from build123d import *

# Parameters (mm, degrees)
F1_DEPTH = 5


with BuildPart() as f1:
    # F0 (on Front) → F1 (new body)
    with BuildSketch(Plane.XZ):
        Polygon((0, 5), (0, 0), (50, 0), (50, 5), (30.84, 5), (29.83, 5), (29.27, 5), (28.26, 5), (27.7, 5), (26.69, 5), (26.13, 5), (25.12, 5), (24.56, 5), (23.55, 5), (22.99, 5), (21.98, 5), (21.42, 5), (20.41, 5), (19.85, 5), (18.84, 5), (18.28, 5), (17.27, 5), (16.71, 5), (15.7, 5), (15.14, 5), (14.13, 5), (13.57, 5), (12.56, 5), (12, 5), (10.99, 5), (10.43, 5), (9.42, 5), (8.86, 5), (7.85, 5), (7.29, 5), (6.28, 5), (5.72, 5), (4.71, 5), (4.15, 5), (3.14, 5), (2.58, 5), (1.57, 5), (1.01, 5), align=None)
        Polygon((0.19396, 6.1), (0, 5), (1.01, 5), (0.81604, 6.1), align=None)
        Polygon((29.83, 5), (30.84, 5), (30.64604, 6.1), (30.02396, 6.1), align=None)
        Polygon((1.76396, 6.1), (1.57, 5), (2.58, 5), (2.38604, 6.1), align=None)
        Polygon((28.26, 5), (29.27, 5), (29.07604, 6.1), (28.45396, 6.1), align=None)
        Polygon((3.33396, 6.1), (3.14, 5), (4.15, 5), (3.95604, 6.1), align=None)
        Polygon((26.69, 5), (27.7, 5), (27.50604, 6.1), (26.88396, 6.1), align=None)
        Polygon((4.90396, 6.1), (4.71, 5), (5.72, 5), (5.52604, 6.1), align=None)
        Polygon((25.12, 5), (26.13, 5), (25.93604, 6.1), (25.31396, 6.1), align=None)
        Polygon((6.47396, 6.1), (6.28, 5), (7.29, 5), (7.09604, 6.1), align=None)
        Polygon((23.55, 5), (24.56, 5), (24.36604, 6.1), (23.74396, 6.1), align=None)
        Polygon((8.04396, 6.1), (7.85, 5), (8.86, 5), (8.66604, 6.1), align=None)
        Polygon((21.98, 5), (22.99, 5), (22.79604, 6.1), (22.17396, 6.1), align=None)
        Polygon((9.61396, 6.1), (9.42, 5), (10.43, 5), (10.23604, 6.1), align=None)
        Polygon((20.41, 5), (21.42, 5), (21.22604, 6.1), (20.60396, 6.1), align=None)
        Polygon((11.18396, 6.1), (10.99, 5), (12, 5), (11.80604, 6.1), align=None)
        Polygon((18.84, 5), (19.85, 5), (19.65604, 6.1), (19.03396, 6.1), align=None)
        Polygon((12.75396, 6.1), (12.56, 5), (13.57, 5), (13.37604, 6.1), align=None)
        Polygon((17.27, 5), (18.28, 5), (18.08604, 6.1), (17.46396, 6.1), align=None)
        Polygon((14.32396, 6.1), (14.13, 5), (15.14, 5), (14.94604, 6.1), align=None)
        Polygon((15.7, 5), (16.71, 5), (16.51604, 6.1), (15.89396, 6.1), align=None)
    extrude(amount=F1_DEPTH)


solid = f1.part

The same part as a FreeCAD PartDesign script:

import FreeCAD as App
import Part
import Sketcher
Q = App.Units.Quantity

doc = App.newDocument("Part")
body = doc.addObject("PartDesign::Body", "Body")

# Sketch on XZ plane
sketch1 = doc.addObject("Sketcher::SketchObject", "Sketch")
body.addObject(sketch1)
sketch1.AttachmentSupport = (doc.XZ_Plane, [""])
sketch1.MapMode = "FlatFace"
sketch1.addGeometry([
    Part.LineSegment(App.Vector(0, 5, 0), App.Vector(0, 0, 0)),  # 0
    Part.LineSegment(App.Vector(0, 0, 0), App.Vector(50, 0, 0)),  # 1
    Part.LineSegment(App.Vector(50, 0, 0), App.Vector(50, 5, 0)),  # 2
    Part.LineSegment(App.Vector(50, 5, 0), App.Vector(30.8, 5, 0)),  # 3
    Part.LineSegment(App.Vector(30.8, 5, 0), App.Vector(30.6, 6.1, 0)),  # 4
    Part.LineSegment(App.Vector(30.6, 6.1, 0), App.Vector(30, 6.1, 0)),  # 5
    Part.LineSegment(App.Vector(30, 6.1, 0), App.Vector(29.8, 5, 0)),  # 6
    Part.LineSegment(App.Vector(29.8, 5, 0), App.Vector(29.3, 5, 0)),  # 7
    Part.LineSegment(App.Vector(29.3, 5, 0), App.Vector(29.1, 6.1, 0)),  # 8
    Part.LineSegment(App.Vector(29.1, 6.1, 0), App.Vector(28.5, 6.1, 0)),  # 9
    Part.LineSegment(App.Vector(28.5, 6.1, 0), App.Vector(28.3, 5, 0)),  # 10
    Part.LineSegment(App.Vector(28.3, 5, 0), App.Vector(27.7, 5, 0)),  # 11
    Part.LineSegment(App.Vector(27.7, 5, 0), App.Vector(27.5, 6.1, 0)),  # 12
    Part.LineSegment(App.Vector(27.5, 6.1, 0), App.Vector(26.9, 6.1, 0)),  # 13
    Part.LineSegment(App.Vector(26.9, 6.1, 0), App.Vector(26.7, 5, 0)),  # 14
    Part.LineSegment(App.Vector(26.7, 5, 0), App.Vector(26.1, 5, 0)),  # 15
    Part.LineSegment(App.Vector(26.1, 5, 0), App.Vector(25.9, 6.1, 0)),  # 16
    Part.LineSegment(App.Vector(25.9, 6.1, 0), App.Vector(25.3, 6.1, 0)),  # 17
    Part.LineSegment(App.Vector(25.3, 6.1, 0), App.Vector(25.1, 5, 0)),  # 18
    Part.LineSegment(App.Vector(25.1, 5, 0), App.Vector(24.6, 5, 0)),  # 19
    Part.LineSegment(App.Vector(24.6, 5, 0), App.Vector(24.4, 6.1, 0)),  # 20
    Part.LineSegment(App.Vector(24.4, 6.1, 0), App.Vector(23.7, 6.1, 0)),  # 21
    Part.LineSegment(App.Vector(23.7, 6.1, 0), App.Vector(23.6, 5, 0)),  # 22
    Part.LineSegment(App.Vector(23.6, 5, 0), App.Vector(23, 5, 0)),  # 23
    Part.LineSegment(App.Vector(23, 5, 0), App.Vector(22.8, 6.1, 0)),  # 24
    Part.LineSegment(App.Vector(22.8, 6.1, 0), App.Vector(22.2, 6.1, 0)),  # 25
    Part.LineSegment(App.Vector(22.2, 6.1, 0), App.Vector(22, 5, 0)),  # 26
    Part.LineSegment(App.Vector(22, 5, 0), App.Vector(21.4, 5, 0)),  # 27
    Part.LineSegment(App.Vector(21.4, 5, 0), App.Vector(21.2, 6.1, 0)),  # 28
    Part.LineSegment(App.Vector(21.2, 6.1, 0), App.Vector(20.6, 6.1, 0)),  # 29
    Part.LineSegment(App.Vector(20.6, 6.1, 0), App.Vector(20.4, 5, 0)),  # 30
    Part.LineSegment(App.Vector(20.4, 5, 0), App.Vector(19.9, 5, 0)),  # 31
    Part.LineSegment(App.Vector(19.9, 5, 0), App.Vector(19.7, 6.1, 0)),  # 32
    Part.LineSegment(App.Vector(19.7, 6.1, 0), App.Vector(19, 6.1, 0)),  # 33
    Part.LineSegment(App.Vector(19, 6.1, 0), App.Vector(18.8, 5, 0)),  # 34
    Part.LineSegment(App.Vector(18.8, 5, 0), App.Vector(18.3, 5, 0)),  # 35
    Part.LineSegment(App.Vector(18.3, 5, 0), App.Vector(18.1, 6.1, 0)),  # 36
    Part.LineSegment(App.Vector(18.1, 6.1, 0), App.Vector(17.5, 6.1, 0)),  # 37
    Part.LineSegment(App.Vector(17.5, 6.1, 0), App.Vector(17.3, 5, 0)),  # 38
    Part.LineSegment(App.Vector(17.3, 5, 0), App.Vector(16.7, 5, 0)),  # 39
    Part.LineSegment(App.Vector(16.7, 5, 0), App.Vector(16.5, 6.1, 0)),  # 40
    Part.LineSegment(App.Vector(16.5, 6.1, 0), App.Vector(15.9, 6.1, 0)),  # 41
    Part.LineSegment(App.Vector(15.9, 6.1, 0), App.Vector(15.7, 5, 0)),  # 42
    Part.LineSegment(App.Vector(15.7, 5, 0), App.Vector(15.1, 5, 0)),  # 43
    Part.LineSegment(App.Vector(15.1, 5, 0), App.Vector(14.9, 6.1, 0)),  # 44
    Part.LineSegment(App.Vector(14.9, 6.1, 0), App.Vector(14.3, 6.1, 0)),  # 45
    Part.LineSegment(App.Vector(14.3, 6.1, 0), App.Vector(14.1, 5, 0)),  # 46
    Part.LineSegment(App.Vector(14.1, 5, 0), App.Vector(13.6, 5, 0)),  # 47
    Part.LineSegment(App.Vector(13.6, 5, 0), App.Vector(13.4, 6.1, 0)),  # 48
    Part.LineSegment(App.Vector(13.4, 6.1, 0), App.Vector(12.8, 6.1, 0)),  # 49
    Part.LineSegment(App.Vector(12.8, 6.1, 0), App.Vector(12.6, 5, 0)),  # 50
    Part.LineSegment(App.Vector(12.6, 5, 0), App.Vector(12, 5, 0)),  # 51
    Part.LineSegment(App.Vector(12, 5, 0), App.Vector(11.8, 6.1, 0)),  # 52
    Part.LineSegment(App.Vector(11.8, 6.1, 0), App.Vector(11.2, 6.1, 0)),  # 53
    Part.LineSegment(App.Vector(11.2, 6.1, 0), App.Vector(11, 5, 0)),  # 54
    Part.LineSegment(App.Vector(11, 5, 0), App.Vector(10.4, 5, 0)),  # 55
    Part.LineSegment(App.Vector(10.4, 5, 0), App.Vector(10.2, 6.1, 0)),  # 56
    Part.LineSegment(App.Vector(10.2, 6.1, 0), App.Vector(9.6, 6.1, 0)),  # 57
    Part.LineSegment(App.Vector(9.6, 6.1, 0), App.Vector(9.4, 5, 0)),  # 58
    Part.LineSegment(App.Vector(9.4, 5, 0), App.Vector(8.9, 5, 0)),  # 59
    Part.LineSegment(App.Vector(8.9, 5, 0), App.Vector(8.7, 6.1, 0)),  # 60
    Part.LineSegment(App.Vector(8.7, 6.1, 0), App.Vector(8, 6.1, 0)),  # 61
    Part.LineSegment(App.Vector(8, 6.1, 0), App.Vector(7.8, 5, 0)),  # 62
    Part.LineSegment(App.Vector(7.8, 5, 0), App.Vector(7.3, 5, 0)),  # 63
    Part.LineSegment(App.Vector(7.3, 5, 0), App.Vector(7.1, 6.1, 0)),  # 64
    Part.LineSegment(App.Vector(7.1, 6.1, 0), App.Vector(6.5, 6.1, 0)),  # 65
    Part.LineSegment(App.Vector(6.5, 6.1, 0), App.Vector(6.3, 5, 0)),  # 66
    Part.LineSegment(App.Vector(6.3, 5, 0), App.Vector(5.7, 5, 0)),  # 67
    Part.LineSegment(App.Vector(5.7, 5, 0), App.Vector(5.5, 6.1, 0)),  # 68
    Part.LineSegment(App.Vector(5.5, 6.1, 0), App.Vector(4.9, 6.1, 0)),  # 69
    Part.LineSegment(App.Vector(4.9, 6.1, 0), App.Vector(4.7, 5, 0)),  # 70
    Part.LineSegment(App.Vector(4.7, 5, 0), App.Vector(4.2, 5, 0)),  # 71
    Part.LineSegment(App.Vector(4.2, 5, 0), App.Vector(4, 6.1, 0)),  # 72
    Part.LineSegment(App.Vector(4, 6.1, 0), App.Vector(3.3, 6.1, 0)),  # 73
    Part.LineSegment(App.Vector(3.3, 6.1, 0), App.Vector(3.1, 5, 0)),  # 74
    Part.LineSegment(App.Vector(3.1, 5, 0), App.Vector(2.6, 5, 0)),  # 75
    Part.LineSegment(App.Vector(2.6, 5, 0), App.Vector(2.4, 6.1, 0)),  # 76
    Part.LineSegment(App.Vector(2.4, 6.1, 0), App.Vector(1.8, 6.1, 0)),  # 77
    Part.LineSegment(App.Vector(1.8, 6.1, 0), App.Vector(1.6, 5, 0)),  # 78
    Part.LineSegment(App.Vector(1.6, 5, 0), App.Vector(1, 5, 0)),  # 79
    Part.LineSegment(App.Vector(1, 5, 0), App.Vector(0.8, 6.1, 0)),  # 80
    Part.LineSegment(App.Vector(0.8, 6.1, 0), App.Vector(0.2, 6.1, 0)),  # 81
    Part.LineSegment(App.Vector(0.2, 6.1, 0), App.Vector(0, 5, 0)),  # 82
], False)
sketch1.addConstraint([
    Sketcher.Constraint("Coincident", 0, 2, 1, 1),
    Sketcher.Constraint("Coincident", 1, 2, 2, 1),
    Sketcher.Constraint("Coincident", 2, 2, 3, 1),
    Sketcher.Constraint("Coincident", 3, 2, 4, 1),
    Sketcher.Constraint("Coincident", 4, 2, 5, 1),
    Sketcher.Constraint("Coincident", 5, 2, 6, 1),
    Sketcher.Constraint("Coincident", 6, 2, 7, 1),
    Sketcher.Constraint("Coincident", 7, 2, 8, 1),
    Sketcher.Constraint("Coincident", 8, 2, 9, 1),
    Sketcher.Constraint("Coincident", 9, 2, 10, 1),
    Sketcher.Constraint("Coincident", 10, 2, 11, 1),
    Sketcher.Constraint("Coincident", 11, 2, 12, 1),
    Sketcher.Constraint("Coincident", 12, 2, 13, 1),
    Sketcher.Constraint("Coincident", 13, 2, 14, 1),
    Sketcher.Constraint("Coincident", 14, 2, 15, 1),
    Sketcher.Constraint("Coincident", 15, 2, 16, 1),
    Sketcher.Constraint("Coincident", 16, 2, 17, 1),
    Sketcher.Constraint("Coincident", 17, 2, 18, 1),
    Sketcher.Constraint("Coincident", 18, 2, 19, 1),
    Sketcher.Constraint("Coincident", 19, 2, 20, 1),
    Sketcher.Constraint("Coincident", 20, 2, 21, 1),
    Sketcher.Constraint("Coincident", 21, 2, 22, 1),
    Sketcher.Constraint("Coincident", 22, 2, 23, 1),
    Sketcher.Constraint("Coincident", 23, 2, 24, 1),
    Sketcher.Constraint("Coincident", 24, 2, 25, 1),
    Sketcher.Constraint("Coincident", 25, 2, 26, 1),
    Sketcher.Constraint("Coincident", 26, 2, 27, 1),
    Sketcher.Constraint("Coincident", 27, 2, 28, 1),
    Sketcher.Constraint("Coincident", 28, 2, 29, 1),
    Sketcher.Constraint("Coincident", 29, 2, 30, 1),
    Sketcher.Constraint("Coincident", 30, 2, 31, 1),
    Sketcher.Constraint("Coincident", 31, 2, 32, 1),
    Sketcher.Constraint("Coincident", 32, 2, 33, 1),
    Sketcher.Constraint("Coincident", 33, 2, 34, 1),
    Sketcher.Constraint("Coincident", 34, 2, 35, 1),
    Sketcher.Constraint("Coincident", 35, 2, 36, 1),
    Sketcher.Constraint("Coincident", 36, 2, 37, 1),
    Sketcher.Constraint("Coincident", 37, 2, 38, 1),
    Sketcher.Constraint("Coincident", 38, 2, 39, 1),
    Sketcher.Constraint("Coincident", 39, 2, 40, 1),
    Sketcher.Constraint("Coincident", 40, 2, 41, 1),
    Sketcher.Constraint("Coincident", 41, 2, 42, 1),
    Sketcher.Constraint("Coincident", 42, 2, 43, 1),
    Sketcher.Constraint("Coincident", 43, 2, 44, 1),
    Sketcher.Constraint("Coincident", 44, 2, 45, 1),
    Sketcher.Constraint("Coincident", 45, 2, 46, 1),
    Sketcher.Constraint("Coincident", 46, 2, 47, 1),
    Sketcher.Constraint("Coincident", 47, 2, 48, 1),
    Sketcher.Constraint("Coincident", 48, 2, 49, 1),
    Sketcher.Constraint("Coincident", 49, 2, 50, 1),
    Sketcher.Constraint("Coincident", 50, 2, 51, 1),
    Sketcher.Constraint("Coincident", 51, 2, 52, 1),
    Sketcher.Constraint("Coincident", 52, 2, 53, 1),
    Sketcher.Constraint("Coincident", 53, 2, 54, 1),
    Sketcher.Constraint("Coincident", 54, 2, 55, 1),
    Sketcher.Constraint("Coincident", 55, 2, 56, 1),
    Sketcher.Constraint("Coincident", 56, 2, 57, 1),
    Sketcher.Constraint("Coincident", 57, 2, 58, 1),
    Sketcher.Constraint("Coincident", 58, 2, 59, 1),
    Sketcher.Constraint("Coincident", 59, 2, 60, 1),
    Sketcher.Constraint("Coincident", 60, 2, 61, 1),
    Sketcher.Constraint("Coincident", 61, 2, 62, 1),
    Sketcher.Constraint("Coincident", 62, 2, 63, 1),
    Sketcher.Constraint("Coincident", 63, 2, 64, 1),
    Sketcher.Constraint("Coincident", 64, 2, 65, 1),
    Sketcher.Constraint("Coincident", 65, 2, 66, 1),
    Sketcher.Constraint("Coincident", 66, 2, 67, 1),
    Sketcher.Constraint("Coincident", 67, 2, 68, 1),
    Sketcher.Constraint("Coincident", 68, 2, 69, 1),
    Sketcher.Constraint("Coincident", 69, 2, 70, 1),
    Sketcher.Constraint("Coincident", 70, 2, 71, 1),
    Sketcher.Constraint("Coincident", 71, 2, 72, 1),
    Sketcher.Constraint("Coincident", 72, 2, 73, 1),
    Sketcher.Constraint("Coincident", 73, 2, 74, 1),
    Sketcher.Constraint("Coincident", 74, 2, 75, 1),
    Sketcher.Constraint("Coincident", 75, 2, 76, 1),
    Sketcher.Constraint("Coincident", 76, 2, 77, 1),
    Sketcher.Constraint("Coincident", 77, 2, 78, 1),
    Sketcher.Constraint("Coincident", 78, 2, 79, 1),
    Sketcher.Constraint("Coincident", 79, 2, 80, 1),
    Sketcher.Constraint("Coincident", 80, 2, 81, 1),
    Sketcher.Constraint("Coincident", 81, 2, 82, 1),
    Sketcher.Constraint("Coincident", 82, 2, 0, 1),
    Sketcher.Constraint("Vertical", 0),
    Sketcher.Constraint("Horizontal", 1),
    Sketcher.Constraint("Vertical", 2),
    Sketcher.Constraint("Horizontal", 3),
    Sketcher.Constraint("Horizontal", 5),
    Sketcher.Constraint("Horizontal", 7),
    Sketcher.Constraint("Horizontal", 9),
    Sketcher.Constraint("Horizontal", 11),
    Sketcher.Constraint("Horizontal", 13),
    Sketcher.Constraint("Horizontal", 15),
    Sketcher.Constraint("Horizontal", 17),
    Sketcher.Constraint("Horizontal", 19),
    Sketcher.Constraint("Horizontal", 21),
    Sketcher.Constraint("Horizontal", 23),
    Sketcher.Constraint("Horizontal", 25),
    Sketcher.Constraint("Horizontal", 27),
    Sketcher.Constraint("Horizontal", 29),
    Sketcher.Constraint("Horizontal", 31),
    Sketcher.Constraint("Horizontal", 33),
    Sketcher.Constraint("Horizontal", 35),
    Sketcher.Constraint("Horizontal", 37),
    Sketcher.Constraint("Horizontal", 39),
    Sketcher.Constraint("Horizontal", 41),
    Sketcher.Constraint("Horizontal", 43),
    Sketcher.Constraint("Horizontal", 45),
    Sketcher.Constraint("Horizontal", 47),
    Sketcher.Constraint("Horizontal", 49),
    Sketcher.Constraint("Horizontal", 51),
    Sketcher.Constraint("Horizontal", 53),
    Sketcher.Constraint("Horizontal", 55),
    Sketcher.Constraint("Horizontal", 57),
    Sketcher.Constraint("Horizontal", 59),
    Sketcher.Constraint("Horizontal", 61),
    Sketcher.Constraint("Horizontal", 63),
    Sketcher.Constraint("Horizontal", 65),
    Sketcher.Constraint("Horizontal", 67),
    Sketcher.Constraint("Horizontal", 69),
    Sketcher.Constraint("Horizontal", 71),
    Sketcher.Constraint("Horizontal", 73),
    Sketcher.Constraint("Horizontal", 75),
    Sketcher.Constraint("Horizontal", 77),
    Sketcher.Constraint("Horizontal", 79),
    Sketcher.Constraint("Horizontal", 81),
    Sketcher.Constraint("Coincident", 0, 2, -1, 1),
    Sketcher.Constraint("Parallel", 4, 8),
    Sketcher.Constraint("Parallel", 6, 10),
    Sketcher.Constraint("Parallel", 8, 12),
    Sketcher.Constraint("Parallel", 10, 14),
    Sketcher.Constraint("Parallel", 12, 16),
    Sketcher.Constraint("Parallel", 14, 18),
    Sketcher.Constraint("Parallel", 16, 20),
    Sketcher.Constraint("Parallel", 18, 22),
    Sketcher.Constraint("Parallel", 20, 24),
    Sketcher.Constraint("Parallel", 22, 26),
    Sketcher.Constraint("Parallel", 24, 28),
    Sketcher.Constraint("Parallel", 26, 30),
    Sketcher.Constraint("Parallel", 28, 32),
    Sketcher.Constraint("Parallel", 30, 34),
    Sketcher.Constraint("Parallel", 32, 36),
    Sketcher.Constraint("Parallel", 34, 38),
    Sketcher.Constraint("Parallel", 36, 40),
    Sketcher.Constraint("Parallel", 38, 42),
    Sketcher.Constraint("Parallel", 40, 44),
    Sketcher.Constraint("Parallel", 42, 46),
    Sketcher.Constraint("Parallel", 44, 48),
    Sketcher.Constraint("Parallel", 46, 50),
    Sketcher.Constraint("Parallel", 48, 52),
    Sketcher.Constraint("Parallel", 50, 54),
    Sketcher.Constraint("Parallel", 52, 56),
    Sketcher.Constraint("Parallel", 54, 58),
    Sketcher.Constraint("Parallel", 56, 60),
    Sketcher.Constraint("Parallel", 58, 62),
    Sketcher.Constraint("Parallel", 60, 64),
    Sketcher.Constraint("Parallel", 62, 66),
    Sketcher.Constraint("Parallel", 64, 68),
    Sketcher.Constraint("Parallel", 66, 70),
    Sketcher.Constraint("Parallel", 68, 72),
    Sketcher.Constraint("Parallel", 70, 74),
    Sketcher.Constraint("Parallel", 72, 76),
    Sketcher.Constraint("Parallel", 74, 78),
    Sketcher.Constraint("Parallel", 76, 80),
    Sketcher.Constraint("Parallel", 78, 82),
    Sketcher.Constraint("Horizontal", 3, 2, 6, 2),
    Sketcher.Constraint("Horizontal", 5, 2, 8, 2),
    Sketcher.Constraint("Horizontal", 7, 2, 10, 2),
    Sketcher.Constraint("Horizontal", 9, 2, 12, 2),
    Sketcher.Constraint("Horizontal", 11, 2, 14, 2),
    Sketcher.Constraint("Horizontal", 13, 2, 16, 2),
    Sketcher.Constraint("Horizontal", 15, 2, 18, 2),
    Sketcher.Constraint("Horizontal", 17, 2, 20, 2),
    Sketcher.Constraint("Horizontal", 19, 2, 22, 2),
    Sketcher.Constraint("Horizontal", 21, 2, 24, 2),
    Sketcher.Constraint("Horizontal", 23, 2, 26, 2),
    Sketcher.Constraint("Horizontal", 25, 2, 28, 2),
    Sketcher.Constraint("Horizontal", 27, 2, 30, 2),
    Sketcher.Constraint("Horizontal", 29, 2, 32, 2),
    Sketcher.Constraint("Horizontal", 31, 2, 34, 2),
    Sketcher.Constraint("Horizontal", 33, 2, 36, 2),
    Sketcher.Constraint("Horizontal", 35, 2, 38, 2),
    Sketcher.Constraint("Horizontal", 37, 2, 40, 2),
    Sketcher.Constraint("Horizontal", 39, 2, 42, 2),
    Sketcher.Constraint("Horizontal", 41, 2, 44, 2),
    Sketcher.Constraint("Horizontal", 43, 2, 46, 2),
    Sketcher.Constraint("Horizontal", 45, 2, 48, 2),
    Sketcher.Constraint("Horizontal", 47, 2, 50, 2),
    Sketcher.Constraint("Horizontal", 49, 2, 52, 2),
    Sketcher.Constraint("Horizontal", 51, 2, 54, 2),
    Sketcher.Constraint("Horizontal", 53, 2, 56, 2),
    Sketcher.Constraint("Horizontal", 55, 2, 58, 2),
    Sketcher.Constraint("Horizontal", 57, 2, 60, 2),
    Sketcher.Constraint("Horizontal", 59, 2, 62, 2),
    Sketcher.Constraint("Horizontal", 61, 2, 64, 2),
    Sketcher.Constraint("Horizontal", 63, 2, 66, 2),
    Sketcher.Constraint("Horizontal", 65, 2, 68, 2),
    Sketcher.Constraint("Horizontal", 67, 2, 70, 2),
    Sketcher.Constraint("Horizontal", 69, 2, 72, 2),
    Sketcher.Constraint("Horizontal", 71, 2, 74, 2),
    Sketcher.Constraint("Horizontal", 73, 2, 76, 2),
    Sketcher.Constraint("Horizontal", 75, 2, 78, 2),
    Sketcher.Constraint("Horizontal", 77, 2, 80, 2),
    Sketcher.Constraint("Horizontal", 79, 2, 82, 2),
    Sketcher.Constraint("Equal", 5, 9),
    Sketcher.Constraint("Equal", 7, 11),
    Sketcher.Constraint("Equal", 9, 13),
    Sketcher.Constraint("Equal", 11, 15),
    Sketcher.Constraint("Equal", 13, 17),
    Sketcher.Constraint("Equal", 15, 19),
    Sketcher.Constraint("Equal", 17, 21),
    Sketcher.Constraint("Equal", 19, 23),
    Sketcher.Constraint("Equal", 21, 25),
    Sketcher.Constraint("Equal", 23, 27),
    Sketcher.Constraint("Equal", 25, 29),
    Sketcher.Constraint("Equal", 27, 31),
    Sketcher.Constraint("Equal", 29, 33),
    Sketcher.Constraint("Equal", 31, 35),
    Sketcher.Constraint("Equal", 33, 37),
    Sketcher.Constraint("Equal", 35, 39),
    Sketcher.Constraint("Equal", 37, 41),
    Sketcher.Constraint("Equal", 39, 43),
    Sketcher.Constraint("Equal", 41, 45),
    Sketcher.Constraint("Equal", 43, 47),
    Sketcher.Constraint("Equal", 45, 49),
    Sketcher.Constraint("Equal", 47, 51),
    Sketcher.Constraint("Equal", 49, 53),
    Sketcher.Constraint("Equal", 51, 55),
    Sketcher.Constraint("Equal", 53, 57),
    Sketcher.Constraint("Equal", 55, 59),
    Sketcher.Constraint("Equal", 57, 61),
    Sketcher.Constraint("Equal", 59, 63),
    Sketcher.Constraint("Equal", 61, 65),
    Sketcher.Constraint("Equal", 63, 67),
    Sketcher.Constraint("Equal", 65, 69),
    Sketcher.Constraint("Equal", 67, 71),
    Sketcher.Constraint("Equal", 69, 73),
    Sketcher.Constraint("Equal", 71, 75),
    Sketcher.Constraint("Equal", 73, 77),
    Sketcher.Constraint("Equal", 75, 79),
    Sketcher.Constraint("Equal", 77, 81),
    Sketcher.Constraint("Equal", 4, 6),
    Sketcher.Constraint("DistanceX", 1, 1, 1, 2, Q("50 mm")),
    Sketcher.Constraint("DistanceY", 0, 2, 0, 1, Q("5 mm")),
    Sketcher.Constraint("Angle", 4, Q("100.000016 deg")),
    Sketcher.Constraint("DistanceX", -1, 1, 51, 2, Q("12 mm")),
    Sketcher.Constraint("DistanceX", 3, 2, 3, 1, Q("19.16 mm")),
    Sketcher.Constraint("DistanceY", -1, 1, 4, 2, Q("6.1 mm")),
])
pad1 = doc.addObject("PartDesign::Pad", "Pad")
body.addObject(pad1)
pad1.Profile = sketch1
pad1.Length = 5

doc.recompute()
